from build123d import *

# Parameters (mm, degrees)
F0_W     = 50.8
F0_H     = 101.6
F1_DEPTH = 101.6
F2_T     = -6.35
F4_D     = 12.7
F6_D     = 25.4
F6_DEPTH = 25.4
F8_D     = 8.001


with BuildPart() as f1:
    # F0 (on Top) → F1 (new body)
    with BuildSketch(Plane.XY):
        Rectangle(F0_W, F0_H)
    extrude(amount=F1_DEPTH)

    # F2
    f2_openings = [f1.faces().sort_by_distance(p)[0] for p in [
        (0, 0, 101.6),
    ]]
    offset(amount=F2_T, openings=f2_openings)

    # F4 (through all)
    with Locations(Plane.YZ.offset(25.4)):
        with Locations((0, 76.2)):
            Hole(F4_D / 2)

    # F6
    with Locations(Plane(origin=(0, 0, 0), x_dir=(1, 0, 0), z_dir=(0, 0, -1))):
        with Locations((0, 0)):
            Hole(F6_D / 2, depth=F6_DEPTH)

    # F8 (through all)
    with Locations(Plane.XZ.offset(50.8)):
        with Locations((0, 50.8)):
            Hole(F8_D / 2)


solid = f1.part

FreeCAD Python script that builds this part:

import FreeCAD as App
import Part
import Sketcher

V = App.Vector
Q = App.Units.Quantity


def faces_at(feature, points):
    """Names of the faces that lie closest to the given points."""
    faces = feature.Shape.Faces
    near = lambda p: min(range(len(faces)), key=lambda i: faces[i].distToShape(Part.Vertex(*p))[0])
    return sorted({f"Face{near(p) + 1}" for p in points})

doc = App.newDocument("Part")
body = doc.addObject("PartDesign::Body", "Body")

sketch1 = doc.addObject("Sketcher::SketchObject", "Sketch")
body.addObject(sketch1)
sketch1.AttachmentSupport = (doc.XY_Plane, [""])
sketch1.MapMode = "FlatFace"
sketch1.addGeometry([
    Part.LineSegment(V(-25, 51, 0), V(-25, -51, 0)),
    Part.LineSegment(V(-25, -51, 0), V(25, -51, 0)),
    Part.LineSegment(V(25, -51, 0), V(25, 51, 0)),
    Part.LineSegment(V(25, 51, 0), V(-25, 51, 0)),
], False)
sketch1.addConstraint([
    Sketcher.Constraint("Coincident", 0, 2, 1, 1),
    Sketcher.Constraint("Coincident", 1, 2, 2, 1),
    Sketcher.Constraint("Coincident", 2, 2, 3, 1),
    Sketcher.Constraint("Coincident", 3, 2, 0, 1),
    Sketcher.Constraint("Vertical", 0),
    Sketcher.Constraint("Horizontal", 1),
    Sketcher.Constraint("Vertical", 2),
    Sketcher.Constraint("Horizontal", 3),
    Sketcher.Constraint("Symmetric", 0, 2, 2, 2, -1, 1),
    Sketcher.Constraint("DistanceX", 1, 1, 1, 2, Q("2 in")),
    Sketcher.Constraint("DistanceY", 0, 2, 0, 1, Q("4 in")),
])
pad1 = doc.addObject("PartDesign::Pad", "Pad")
body.addObject(pad1)
pad1.Profile = sketch1
pad1.Length = Q("4 in")
doc.recompute()

thickness = doc.addObject("PartDesign::Thickness", "Thickness")
body.addObject(thickness)
thickness.Base = (pad1, faces_at(pad1, [(0, 0, 101.6)]))
thickness.Value = Q("0.25 in")
thickness.Reversed = True
thickness.Join = "Arc"

sketch2 = doc.addObject("Sketcher::SketchObject", "Sketch001")
body.addObject(sketch2)
sketch2.AttachmentSupport = (doc.YZ_Plane, [""])
sketch2.MapMode = "FlatFace"
sketch2.AttachmentOffset = App.Placement(V(0, 0, 1 * 25.4), App.Rotation())
sketch2.addGeometry(Part.Circle(V(0, 76, 0), V(0, 0, 1), 6), False)
sketch2.addConstraint([
    Sketcher.Constraint("PointOnObject", 0, 3, -2),
    Sketcher.Constraint("Diameter", 0, Q("0.5 in")),
    Sketcher.Constraint("DistanceY", -1, 1, 0, 3, Q("3 in")),
])
doc.recompute()
hole = doc.addObject("PartDesign::Hole", "Hole")
body.addObject(hole)
hole.Profile = sketch2
hole.ThreadType = "None"
hole.Diameter = Q("0.5 in")
hole.DepthType = "ThroughAll"

sketch3 = doc.addObject("Sketcher::SketchObject", "Sketch002")
body.addObject(sketch3)
sketch3.AttachmentSupport = (doc.XY_Plane, [""])
sketch3.MapMode = "FlatFace"
sketch3.addGeometry(Part.Circle(V(0, 0, 0), V(0, 0, 1), 13), False)
sketch3.addConstraint([
    Sketcher.Constraint("Coincident", 0, 3, -1, 1),
    Sketcher.Constraint("Diameter", 0, Q("1 in")),
])
doc.recompute()
hole2 = doc.addObject("PartDesign::Hole", "Hole001")
body.addObject(hole2)
hole2.Profile = sketch3
hole2.ThreadType = "None"
hole2.Diameter = Q("1 in")
hole2.DepthType = "Dimension"
hole2.Depth = Q("1 in")
hole2.DrillPoint = "Flat"
hole2.Reversed = True

sketch4 = doc.addObject("Sketcher::SketchObject", "Sketch003")
body.addObject(sketch4)
sketch4.AttachmentSupport = (doc.XZ_Plane, [""])
sketch4.MapMode = "FlatFace"
sketch4.AttachmentOffset = App.Placement(V(0, 0, 2 * 25.4), App.Rotation())
sketch4.addGeometry(Part.Circle(V(0, 50.8, 0), V(0, 0, 1), 4), False)
sketch4.addConstraint([
    Sketcher.Constraint("PointOnObject", 0, 3, -2),
    Sketcher.Constraint("Diameter", 0, Q("0.315 in")),
    Sketcher.Constraint("DistanceY", -1, 1, 0, 3, Q("2 in")),
])
doc.recompute()
hole3 = doc.addObject("PartDesign::Hole", "Hole002")
body.addObject(hole3)
hole3.Profile = sketch4
hole3.ThreadType = "None"
hole3.Diameter = Q("0.315 in")
hole3.DepthType = "ThroughAll"

doc.recompute()
